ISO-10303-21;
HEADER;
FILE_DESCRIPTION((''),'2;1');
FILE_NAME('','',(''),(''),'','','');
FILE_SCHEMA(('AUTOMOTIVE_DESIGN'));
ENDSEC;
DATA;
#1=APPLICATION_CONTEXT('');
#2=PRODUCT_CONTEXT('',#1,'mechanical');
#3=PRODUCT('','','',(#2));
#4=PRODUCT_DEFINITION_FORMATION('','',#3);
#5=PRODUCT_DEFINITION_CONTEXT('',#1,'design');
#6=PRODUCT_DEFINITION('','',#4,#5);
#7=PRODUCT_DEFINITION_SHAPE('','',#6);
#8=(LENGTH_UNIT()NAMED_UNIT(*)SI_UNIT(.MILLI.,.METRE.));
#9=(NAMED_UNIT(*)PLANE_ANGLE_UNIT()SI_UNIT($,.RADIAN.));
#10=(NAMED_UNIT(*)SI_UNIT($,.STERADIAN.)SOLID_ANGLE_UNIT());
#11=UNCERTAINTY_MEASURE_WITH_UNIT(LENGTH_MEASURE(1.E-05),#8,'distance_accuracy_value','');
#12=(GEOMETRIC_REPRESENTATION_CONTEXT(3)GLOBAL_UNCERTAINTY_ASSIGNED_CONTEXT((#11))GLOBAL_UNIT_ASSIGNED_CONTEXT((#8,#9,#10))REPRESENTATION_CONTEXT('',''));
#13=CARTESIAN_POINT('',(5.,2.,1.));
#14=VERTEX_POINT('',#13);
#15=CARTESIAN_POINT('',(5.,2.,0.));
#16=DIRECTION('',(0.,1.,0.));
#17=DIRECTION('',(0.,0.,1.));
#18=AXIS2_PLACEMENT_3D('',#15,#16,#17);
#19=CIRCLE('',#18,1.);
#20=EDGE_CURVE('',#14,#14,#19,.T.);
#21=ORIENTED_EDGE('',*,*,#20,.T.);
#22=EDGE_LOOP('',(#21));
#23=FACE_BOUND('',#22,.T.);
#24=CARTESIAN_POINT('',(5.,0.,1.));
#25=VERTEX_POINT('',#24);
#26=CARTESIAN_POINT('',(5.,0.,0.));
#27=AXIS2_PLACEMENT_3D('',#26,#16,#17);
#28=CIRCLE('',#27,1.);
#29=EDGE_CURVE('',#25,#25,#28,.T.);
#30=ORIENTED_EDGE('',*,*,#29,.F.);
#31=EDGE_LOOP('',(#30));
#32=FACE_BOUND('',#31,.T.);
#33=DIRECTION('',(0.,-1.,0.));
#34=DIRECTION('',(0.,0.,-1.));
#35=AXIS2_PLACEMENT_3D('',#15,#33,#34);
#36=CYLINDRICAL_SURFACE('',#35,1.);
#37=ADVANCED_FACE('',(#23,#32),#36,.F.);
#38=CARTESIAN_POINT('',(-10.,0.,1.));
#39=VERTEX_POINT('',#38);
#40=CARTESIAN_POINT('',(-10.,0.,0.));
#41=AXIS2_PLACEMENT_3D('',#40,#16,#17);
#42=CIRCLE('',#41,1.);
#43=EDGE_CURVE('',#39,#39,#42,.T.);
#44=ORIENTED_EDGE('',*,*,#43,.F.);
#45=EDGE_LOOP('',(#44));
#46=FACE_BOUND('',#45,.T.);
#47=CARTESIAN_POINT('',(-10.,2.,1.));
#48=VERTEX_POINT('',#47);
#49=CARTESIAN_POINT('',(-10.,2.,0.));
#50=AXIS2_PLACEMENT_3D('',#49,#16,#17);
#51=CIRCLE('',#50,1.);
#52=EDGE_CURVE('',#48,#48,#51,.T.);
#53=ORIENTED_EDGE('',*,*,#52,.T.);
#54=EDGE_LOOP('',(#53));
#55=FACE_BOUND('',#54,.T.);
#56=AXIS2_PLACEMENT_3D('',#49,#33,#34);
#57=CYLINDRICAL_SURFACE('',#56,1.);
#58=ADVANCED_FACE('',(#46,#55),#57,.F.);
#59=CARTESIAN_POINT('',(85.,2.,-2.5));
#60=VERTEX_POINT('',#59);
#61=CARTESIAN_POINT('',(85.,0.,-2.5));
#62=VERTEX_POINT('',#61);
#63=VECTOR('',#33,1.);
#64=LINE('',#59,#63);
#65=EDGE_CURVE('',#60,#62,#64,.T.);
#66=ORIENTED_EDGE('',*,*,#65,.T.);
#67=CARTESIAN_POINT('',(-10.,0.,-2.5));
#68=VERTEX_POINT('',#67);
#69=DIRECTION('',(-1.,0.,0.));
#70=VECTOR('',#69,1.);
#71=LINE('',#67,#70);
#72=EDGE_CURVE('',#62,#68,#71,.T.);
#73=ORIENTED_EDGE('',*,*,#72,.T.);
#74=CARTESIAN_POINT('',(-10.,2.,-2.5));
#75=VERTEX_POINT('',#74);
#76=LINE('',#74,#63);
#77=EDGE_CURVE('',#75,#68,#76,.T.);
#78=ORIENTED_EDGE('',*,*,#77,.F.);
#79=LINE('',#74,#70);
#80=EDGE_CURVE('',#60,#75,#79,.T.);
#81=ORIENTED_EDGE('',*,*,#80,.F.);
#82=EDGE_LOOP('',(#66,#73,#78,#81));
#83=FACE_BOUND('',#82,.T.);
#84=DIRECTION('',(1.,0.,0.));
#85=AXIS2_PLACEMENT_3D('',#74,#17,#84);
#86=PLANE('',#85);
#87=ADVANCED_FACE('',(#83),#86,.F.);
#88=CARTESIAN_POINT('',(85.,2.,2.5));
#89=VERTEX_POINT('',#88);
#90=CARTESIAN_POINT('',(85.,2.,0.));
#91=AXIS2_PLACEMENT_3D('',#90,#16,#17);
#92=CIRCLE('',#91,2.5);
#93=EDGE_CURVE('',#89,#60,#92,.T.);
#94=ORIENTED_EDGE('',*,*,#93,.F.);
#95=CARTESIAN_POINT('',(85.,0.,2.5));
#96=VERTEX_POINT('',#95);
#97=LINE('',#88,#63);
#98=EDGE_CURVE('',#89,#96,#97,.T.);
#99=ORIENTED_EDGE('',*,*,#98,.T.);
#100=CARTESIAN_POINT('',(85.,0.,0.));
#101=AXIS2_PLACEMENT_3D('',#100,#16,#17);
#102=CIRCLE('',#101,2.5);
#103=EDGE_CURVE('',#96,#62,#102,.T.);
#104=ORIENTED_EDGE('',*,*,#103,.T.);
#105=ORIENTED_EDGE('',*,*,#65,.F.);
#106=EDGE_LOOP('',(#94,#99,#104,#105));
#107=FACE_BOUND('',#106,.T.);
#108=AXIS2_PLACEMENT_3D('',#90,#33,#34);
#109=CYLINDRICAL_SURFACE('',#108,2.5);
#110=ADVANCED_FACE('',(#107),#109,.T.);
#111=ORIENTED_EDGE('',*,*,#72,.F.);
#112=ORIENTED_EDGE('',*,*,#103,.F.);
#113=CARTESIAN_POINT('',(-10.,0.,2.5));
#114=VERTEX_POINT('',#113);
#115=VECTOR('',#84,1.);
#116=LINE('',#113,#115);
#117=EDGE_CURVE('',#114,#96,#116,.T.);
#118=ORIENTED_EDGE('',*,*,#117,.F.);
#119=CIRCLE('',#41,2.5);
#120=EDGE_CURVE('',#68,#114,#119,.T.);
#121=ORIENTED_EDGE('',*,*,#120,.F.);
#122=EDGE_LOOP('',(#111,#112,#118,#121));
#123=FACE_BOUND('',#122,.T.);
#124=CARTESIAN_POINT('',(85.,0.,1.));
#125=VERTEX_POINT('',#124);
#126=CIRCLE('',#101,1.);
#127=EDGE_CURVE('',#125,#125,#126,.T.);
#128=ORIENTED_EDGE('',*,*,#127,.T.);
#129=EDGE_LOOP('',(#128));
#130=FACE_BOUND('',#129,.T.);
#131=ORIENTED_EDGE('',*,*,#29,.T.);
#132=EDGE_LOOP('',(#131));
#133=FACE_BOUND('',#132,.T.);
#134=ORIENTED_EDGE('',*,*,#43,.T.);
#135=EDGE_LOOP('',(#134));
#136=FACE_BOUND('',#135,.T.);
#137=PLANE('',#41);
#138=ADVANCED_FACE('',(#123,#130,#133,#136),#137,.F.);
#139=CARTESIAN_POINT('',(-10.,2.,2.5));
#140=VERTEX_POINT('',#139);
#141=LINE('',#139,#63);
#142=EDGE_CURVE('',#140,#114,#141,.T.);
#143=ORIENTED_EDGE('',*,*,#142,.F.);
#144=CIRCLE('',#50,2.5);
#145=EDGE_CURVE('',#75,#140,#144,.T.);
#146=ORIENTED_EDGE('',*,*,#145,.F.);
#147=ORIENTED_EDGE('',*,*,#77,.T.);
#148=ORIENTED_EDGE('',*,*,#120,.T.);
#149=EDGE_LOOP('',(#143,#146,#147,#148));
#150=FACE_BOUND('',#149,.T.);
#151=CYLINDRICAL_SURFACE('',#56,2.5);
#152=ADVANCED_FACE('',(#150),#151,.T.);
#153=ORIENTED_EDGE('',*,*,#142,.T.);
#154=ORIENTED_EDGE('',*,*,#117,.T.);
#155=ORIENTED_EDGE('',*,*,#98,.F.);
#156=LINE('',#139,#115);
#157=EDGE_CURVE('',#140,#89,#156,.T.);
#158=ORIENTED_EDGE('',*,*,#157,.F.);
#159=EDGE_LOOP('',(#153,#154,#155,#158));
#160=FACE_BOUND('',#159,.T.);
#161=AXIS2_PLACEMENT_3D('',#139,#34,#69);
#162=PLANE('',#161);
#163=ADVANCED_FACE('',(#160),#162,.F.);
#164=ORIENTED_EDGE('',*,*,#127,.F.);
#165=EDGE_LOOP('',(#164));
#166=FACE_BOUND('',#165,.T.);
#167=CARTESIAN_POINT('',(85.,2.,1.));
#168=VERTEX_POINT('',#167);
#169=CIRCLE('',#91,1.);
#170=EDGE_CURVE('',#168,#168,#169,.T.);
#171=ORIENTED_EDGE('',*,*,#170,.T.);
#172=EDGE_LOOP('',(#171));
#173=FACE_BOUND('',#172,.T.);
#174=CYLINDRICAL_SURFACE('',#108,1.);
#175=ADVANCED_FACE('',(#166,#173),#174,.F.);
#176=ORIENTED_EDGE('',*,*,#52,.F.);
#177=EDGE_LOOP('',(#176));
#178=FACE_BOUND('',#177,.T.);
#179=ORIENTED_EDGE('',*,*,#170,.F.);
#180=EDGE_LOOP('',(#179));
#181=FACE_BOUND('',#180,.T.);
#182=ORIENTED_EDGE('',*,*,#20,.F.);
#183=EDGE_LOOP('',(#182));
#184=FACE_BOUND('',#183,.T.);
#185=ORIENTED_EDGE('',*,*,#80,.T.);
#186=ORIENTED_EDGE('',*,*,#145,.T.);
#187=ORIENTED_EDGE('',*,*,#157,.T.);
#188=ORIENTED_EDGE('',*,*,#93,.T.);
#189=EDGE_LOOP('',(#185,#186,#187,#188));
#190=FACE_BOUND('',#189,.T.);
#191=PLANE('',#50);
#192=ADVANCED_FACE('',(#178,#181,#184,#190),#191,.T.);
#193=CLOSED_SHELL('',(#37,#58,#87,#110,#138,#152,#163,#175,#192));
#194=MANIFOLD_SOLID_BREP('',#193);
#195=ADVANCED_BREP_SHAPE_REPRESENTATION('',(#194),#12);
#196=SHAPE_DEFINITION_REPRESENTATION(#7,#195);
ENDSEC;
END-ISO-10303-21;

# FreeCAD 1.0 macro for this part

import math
import FreeCAD as App
import Part
import Sketcher

V = App.Vector
Q = App.Units.Quantity

doc = App.newDocument("Part")
body = doc.addObject("PartDesign::Body", "Body")

# Sketch on XZ plane
sketch1 = body.newObject("Sketcher::SketchObject", "Sketch")
sketch1.AttachmentSupport = (doc.getObject("XZ_Plane"), [""])
sketch1.MapMode = "FlatFace"
sketch1.addGeometry([
    Part.LineSegment(V(85, -2.5, 0), V(-10, -2.5, 0)),  # 0
    Part.ArcOfCircle(Part.Circle(V(-10, 0, 0), V(0, 0, 1), 2.5), math.radians(90), math.radians(270)),  # 1
    Part.LineSegment(V(-10, 2.5, 0), V(85, 2.5, 0)),  # 2
    Part.ArcOfCircle(Part.Circle(V(85, 0, 0), V(0, 0, 1), 2.5), math.radians(-90), math.radians(90)),  # 3
    Part.Circle(V(85, 0, 0), V(0, 0, 1), 1),  # 4
    Part.Circle(V(5, 0, 0), V(0, 0, 1), 1),  # 5
    Part.Circle(V(-10, 0, 0), V(0, 0, 1), 1),  # 6
], False)
sketch1.addConstraint([
    Sketcher.Constraint("Tangent", 0, 2, 1, 2),
    Sketcher.Constraint("Tangent", 1, 1, 2, 1),
    Sketcher.Constraint("Tangent", 2, 2, 3, 2),
    Sketcher.Constraint("Tangent", 3, 1, 0, 1),
    Sketcher.Constraint("Horizontal", 0),
    Sketcher.Constraint("Horizontal", 2),
    Sketcher.Constraint("Coincident", 4, 3, 3, 3),
    Sketcher.Constraint("Coincident", 6, 3, 1, 3),
    Sketcher.Constraint("Equal", 4, 5),
    Sketcher.Constraint("Equal", 5, 6),
    Sketcher.Constraint("PointOnObject", 1, 3, -1),
    Sketcher.Constraint("PointOnObject", 5, 3, -1),
    Sketcher.Constraint("Diameter", 4, Q("2 mm")),
    Sketcher.Constraint("Radius", 1, Q("2.5 mm")),
    Sketcher.Constraint("DistanceX", 0, 2, 0, 1, Q("95 mm")),
    Sketcher.Constraint("DistanceX", 1, 3, -1, 1, Q("10 mm")),
    Sketcher.Constraint("DistanceX", -1, 1, 5, 3, Q("5 mm")),
])
pad1 = body.newObject("PartDesign::Pad", "Pad")
pad1.Profile = sketch1
pad1.Length = 2
pad1.Reversed = True

doc.recompute()
